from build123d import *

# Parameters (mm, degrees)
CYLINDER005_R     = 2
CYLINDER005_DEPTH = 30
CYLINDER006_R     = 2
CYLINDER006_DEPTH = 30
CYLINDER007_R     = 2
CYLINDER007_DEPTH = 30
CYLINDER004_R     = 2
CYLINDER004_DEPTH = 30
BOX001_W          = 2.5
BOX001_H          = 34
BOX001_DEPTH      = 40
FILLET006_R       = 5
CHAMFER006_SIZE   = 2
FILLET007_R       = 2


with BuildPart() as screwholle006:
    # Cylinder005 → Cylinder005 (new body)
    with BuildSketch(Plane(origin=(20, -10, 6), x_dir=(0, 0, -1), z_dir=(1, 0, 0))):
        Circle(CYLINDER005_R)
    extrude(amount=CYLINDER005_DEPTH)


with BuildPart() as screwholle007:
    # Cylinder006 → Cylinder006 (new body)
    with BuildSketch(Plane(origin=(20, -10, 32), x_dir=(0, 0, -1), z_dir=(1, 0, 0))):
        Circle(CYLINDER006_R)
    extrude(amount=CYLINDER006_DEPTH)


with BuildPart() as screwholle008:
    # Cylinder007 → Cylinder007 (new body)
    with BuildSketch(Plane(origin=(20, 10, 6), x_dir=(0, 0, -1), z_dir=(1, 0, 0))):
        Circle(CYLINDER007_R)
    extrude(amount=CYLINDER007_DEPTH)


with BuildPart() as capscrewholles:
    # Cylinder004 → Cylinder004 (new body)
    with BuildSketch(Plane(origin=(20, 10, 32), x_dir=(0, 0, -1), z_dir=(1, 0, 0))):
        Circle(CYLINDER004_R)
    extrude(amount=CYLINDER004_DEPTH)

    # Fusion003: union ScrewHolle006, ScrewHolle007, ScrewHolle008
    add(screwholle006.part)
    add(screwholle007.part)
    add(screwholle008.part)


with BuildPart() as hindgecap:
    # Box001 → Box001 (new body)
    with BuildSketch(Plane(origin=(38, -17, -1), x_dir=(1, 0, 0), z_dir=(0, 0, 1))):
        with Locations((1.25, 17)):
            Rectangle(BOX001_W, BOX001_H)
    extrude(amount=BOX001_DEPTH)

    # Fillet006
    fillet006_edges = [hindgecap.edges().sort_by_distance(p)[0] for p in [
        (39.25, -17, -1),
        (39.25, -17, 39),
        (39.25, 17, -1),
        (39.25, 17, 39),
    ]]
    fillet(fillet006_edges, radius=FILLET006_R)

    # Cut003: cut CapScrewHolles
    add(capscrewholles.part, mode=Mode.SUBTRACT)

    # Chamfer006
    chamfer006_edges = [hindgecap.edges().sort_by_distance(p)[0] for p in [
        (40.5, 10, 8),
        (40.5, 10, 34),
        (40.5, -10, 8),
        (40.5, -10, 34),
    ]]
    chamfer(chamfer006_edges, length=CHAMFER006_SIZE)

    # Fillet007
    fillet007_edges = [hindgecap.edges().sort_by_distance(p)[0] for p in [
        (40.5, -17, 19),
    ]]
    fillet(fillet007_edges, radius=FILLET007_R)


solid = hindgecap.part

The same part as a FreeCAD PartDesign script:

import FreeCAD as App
import Part
import Sketcher

V = App.Vector


def edges_at(feature, points):
    """Names of the edges that pass closest to the given points."""
    edges = feature.Shape.Edges
    near = lambda p: min(range(len(edges)), key=lambda i: edges[i].distToShape(Part.Vertex(*p))[0])
    return sorted({f"Edge{near(p) + 1}" for p in points})


def add_polygon(sketch, points):
    """Adds a closed chain of lines whose ends are joined by coincident constraints."""
    first, n = sketch.GeometryCount, len(points)
    for a, b in zip(points, points[1:] + points[:1]):
        sketch.addGeometry(Part.LineSegment(App.Vector(*a, 0), App.Vector(*b, 0)), False)
    for i in range(n):
        sketch.addConstraint(Sketcher.Constraint("Coincident", first + i, 2, first + (i + 1) % n, 1))

doc = App.newDocument("Part")
body = doc.addObject("PartDesign::Body", "Body")

sketch1 = body.newObject("Sketcher::SketchObject", "Sketch")
sketch1.AttachmentSupport = (doc.getObject("YZ_Plane"), [""])
sketch1.MapMode = "FlatFace"
sketch1.AttachmentOffset = App.Placement(V(0, 0, 20), App.Rotation())
sketch1.addGeometry(Part.Circle(V(-10, 6, 0), V(0, 0, 1), 2), False)
sketch1.addConstraint([
    Sketcher.Constraint("Diameter", 0, 4.0),
    Sketcher.Constraint("DistanceX", 0, 3, -1, 1, 10.0),
    Sketcher.Constraint("DistanceY", -1, 1, 0, 3, 6.0),
])
pad1 = body.newObject("PartDesign::Pad", "Pad")
pad1.Profile = sketch1
pad1.Length = 30
body2 = doc.addObject("PartDesign::Body", "Body001")

sketch2 = body2.newObject("Sketcher::SketchObject", "Sketch001")
sketch2.AttachmentSupport = (doc.getObject("YZ_Plane001"), [""])
sketch2.MapMode = "FlatFace"
sketch2.AttachmentOffset = App.Placement(V(0, 0, 20), App.Rotation())
sketch2.addGeometry(Part.Circle(V(-10, 32, 0), V(0, 0, 1), 2), False)
sketch2.addConstraint([
    Sketcher.Constraint("Diameter", 0, 4.0),
    Sketcher.Constraint("DistanceX", 0, 3, -1, 1, 10.0),
    Sketcher.Constraint("DistanceY", -1, 1, 0, 3, 32.0),
])
pad2 = body2.newObject("PartDesign::Pad", "Pad001")
pad2.Profile = sketch2
pad2.Length = 30
body3 = doc.addObject("PartDesign::Body", "Body002")

sketch3 = body3.newObject("Sketcher::SketchObject", "Sketch002")
sketch3.AttachmentSupport = (doc.getObject("YZ_Plane002"), [""])
sketch3.MapMode = "FlatFace"
sketch3.AttachmentOffset = App.Placement(V(0, 0, 20), App.Rotation())
sketch3.addGeometry(Part.Circle(V(10, 6, 0), V(0, 0, 1), 2), False)
sketch3.addConstraint([
    Sketcher.Constraint("Diameter", 0, 4.0),
    Sketcher.Constraint("DistanceX", -1, 1, 0, 3, 10.0),
    Sketcher.Constraint("DistanceY", -1, 1, 0, 3, 6.0),
])
pad3 = body3.newObject("PartDesign::Pad", "Pad002")
pad3.Profile = sketch3
pad3.Length = 30
body4 = doc.addObject("PartDesign::Body", "Body003")
body4.AllowCompound = True

sketch4 = body4.newObject("Sketcher::SketchObject", "Sketch003")
sketch4.AttachmentSupport = (doc.getObject("YZ_Plane003"), [""])
sketch4.MapMode = "FlatFace"
sketch4.AttachmentOffset = App.Placement(V(0, 0, 20), App.Rotation())
sketch4.addGeometry(Part.Circle(V(10, 32, 0), V(0, 0, 1), 2), False)
sketch4.addConstraint([
    Sketcher.Constraint("Diameter", 0, 4.0),
    Sketcher.Constraint("DistanceX", -1, 1, 0, 3, 10.0),
    Sketcher.Constraint("DistanceY", -1, 1, 0, 3, 32.0),
])
pad4 = body4.newObject("PartDesign::Pad", "Pad003")
pad4.Profile = sketch4
pad4.Length = 30
doc.recompute()

boolean = body4.newObject("PartDesign::Boolean", "Boolean")
boolean.Type = "Fuse"
boolean.addObjects([body])
doc.recompute()

boolean2 = body4.newObject("PartDesign::Boolean", "Boolean001")
boolean2.Type = "Fuse"
boolean2.addObjects([body2])
doc.recompute()

boolean3 = body4.newObject("PartDesign::Boolean", "Boolean002")
boolean3.Type = "Fuse"
boolean3.addObjects([body3])
body5 = doc.addObject("PartDesign::Body", "Body004")

sketch5 = body5.newObject("Sketcher::SketchObject", "Sketch004")
sketch5.AttachmentSupport = (doc.getObject("XY_Plane004"), [""])
sketch5.MapMode = "FlatFace"
sketch5.AttachmentOffset = App.Placement(V(0, 0, -1), App.Rotation())
add_polygon(sketch5, [(38, 17), (38, -17), (40.5, -17), (40.5, 17)])
sketch5.addConstraint([
    Sketcher.Constraint("Vertical", 0),
    Sketcher.Constraint("Horizontal", 1),
    Sketcher.Constraint("Vertical", 2),
    Sketcher.Constraint("Horizontal", 3),
    Sketcher.Constraint("DistanceY", 0, 2, 0, 1, 34.0),
    Sketcher.Constraint("DistanceX", 1, 1, 1, 2, 2.5),
    Sketcher.Constraint("DistanceX", -1, 1, 0, 2, 38.0),
    Sketcher.Constraint("DistanceY", 0, 2, -1, 1, 17.0),
])
pad5 = body5.newObject("PartDesign::Pad", "Pad004")
pad5.Profile = sketch5
pad5.Length = 40
doc.recompute()

fillet = body5.newObject("PartDesign::Fillet", "Fillet")
fillet.Base = (pad5, edges_at(pad5, [
    (39.25, -17, -1),
    (39.25, -17, 39),
    (39.25, 17, -1),
    (39.25, 17, 39),
]))
fillet.Radius = 5
doc.recompute()

boolean4 = body5.newObject("PartDesign::Boolean", "Boolean003")
boolean4.Type = "Cut"
boolean4.addObjects([body4])
doc.recompute()

chamfer = body5.newObject("PartDesign::Chamfer", "Chamfer")
chamfer.Base = (boolean4, edges_at(boolean4, [
    (40.5, 10, 8),
    (40.5, 10, 34),
    (40.5, -10, 8),
    (40.5, -10, 34),
]))
chamfer.Size = 2
doc.recompute()

fillet2 = body5.newObject("PartDesign::Fillet", "Fillet001")
fillet2.Base = (chamfer, edges_at(chamfer, [(40.5, -17, 19)]))
fillet2.Radius = 2

doc.recompute()
